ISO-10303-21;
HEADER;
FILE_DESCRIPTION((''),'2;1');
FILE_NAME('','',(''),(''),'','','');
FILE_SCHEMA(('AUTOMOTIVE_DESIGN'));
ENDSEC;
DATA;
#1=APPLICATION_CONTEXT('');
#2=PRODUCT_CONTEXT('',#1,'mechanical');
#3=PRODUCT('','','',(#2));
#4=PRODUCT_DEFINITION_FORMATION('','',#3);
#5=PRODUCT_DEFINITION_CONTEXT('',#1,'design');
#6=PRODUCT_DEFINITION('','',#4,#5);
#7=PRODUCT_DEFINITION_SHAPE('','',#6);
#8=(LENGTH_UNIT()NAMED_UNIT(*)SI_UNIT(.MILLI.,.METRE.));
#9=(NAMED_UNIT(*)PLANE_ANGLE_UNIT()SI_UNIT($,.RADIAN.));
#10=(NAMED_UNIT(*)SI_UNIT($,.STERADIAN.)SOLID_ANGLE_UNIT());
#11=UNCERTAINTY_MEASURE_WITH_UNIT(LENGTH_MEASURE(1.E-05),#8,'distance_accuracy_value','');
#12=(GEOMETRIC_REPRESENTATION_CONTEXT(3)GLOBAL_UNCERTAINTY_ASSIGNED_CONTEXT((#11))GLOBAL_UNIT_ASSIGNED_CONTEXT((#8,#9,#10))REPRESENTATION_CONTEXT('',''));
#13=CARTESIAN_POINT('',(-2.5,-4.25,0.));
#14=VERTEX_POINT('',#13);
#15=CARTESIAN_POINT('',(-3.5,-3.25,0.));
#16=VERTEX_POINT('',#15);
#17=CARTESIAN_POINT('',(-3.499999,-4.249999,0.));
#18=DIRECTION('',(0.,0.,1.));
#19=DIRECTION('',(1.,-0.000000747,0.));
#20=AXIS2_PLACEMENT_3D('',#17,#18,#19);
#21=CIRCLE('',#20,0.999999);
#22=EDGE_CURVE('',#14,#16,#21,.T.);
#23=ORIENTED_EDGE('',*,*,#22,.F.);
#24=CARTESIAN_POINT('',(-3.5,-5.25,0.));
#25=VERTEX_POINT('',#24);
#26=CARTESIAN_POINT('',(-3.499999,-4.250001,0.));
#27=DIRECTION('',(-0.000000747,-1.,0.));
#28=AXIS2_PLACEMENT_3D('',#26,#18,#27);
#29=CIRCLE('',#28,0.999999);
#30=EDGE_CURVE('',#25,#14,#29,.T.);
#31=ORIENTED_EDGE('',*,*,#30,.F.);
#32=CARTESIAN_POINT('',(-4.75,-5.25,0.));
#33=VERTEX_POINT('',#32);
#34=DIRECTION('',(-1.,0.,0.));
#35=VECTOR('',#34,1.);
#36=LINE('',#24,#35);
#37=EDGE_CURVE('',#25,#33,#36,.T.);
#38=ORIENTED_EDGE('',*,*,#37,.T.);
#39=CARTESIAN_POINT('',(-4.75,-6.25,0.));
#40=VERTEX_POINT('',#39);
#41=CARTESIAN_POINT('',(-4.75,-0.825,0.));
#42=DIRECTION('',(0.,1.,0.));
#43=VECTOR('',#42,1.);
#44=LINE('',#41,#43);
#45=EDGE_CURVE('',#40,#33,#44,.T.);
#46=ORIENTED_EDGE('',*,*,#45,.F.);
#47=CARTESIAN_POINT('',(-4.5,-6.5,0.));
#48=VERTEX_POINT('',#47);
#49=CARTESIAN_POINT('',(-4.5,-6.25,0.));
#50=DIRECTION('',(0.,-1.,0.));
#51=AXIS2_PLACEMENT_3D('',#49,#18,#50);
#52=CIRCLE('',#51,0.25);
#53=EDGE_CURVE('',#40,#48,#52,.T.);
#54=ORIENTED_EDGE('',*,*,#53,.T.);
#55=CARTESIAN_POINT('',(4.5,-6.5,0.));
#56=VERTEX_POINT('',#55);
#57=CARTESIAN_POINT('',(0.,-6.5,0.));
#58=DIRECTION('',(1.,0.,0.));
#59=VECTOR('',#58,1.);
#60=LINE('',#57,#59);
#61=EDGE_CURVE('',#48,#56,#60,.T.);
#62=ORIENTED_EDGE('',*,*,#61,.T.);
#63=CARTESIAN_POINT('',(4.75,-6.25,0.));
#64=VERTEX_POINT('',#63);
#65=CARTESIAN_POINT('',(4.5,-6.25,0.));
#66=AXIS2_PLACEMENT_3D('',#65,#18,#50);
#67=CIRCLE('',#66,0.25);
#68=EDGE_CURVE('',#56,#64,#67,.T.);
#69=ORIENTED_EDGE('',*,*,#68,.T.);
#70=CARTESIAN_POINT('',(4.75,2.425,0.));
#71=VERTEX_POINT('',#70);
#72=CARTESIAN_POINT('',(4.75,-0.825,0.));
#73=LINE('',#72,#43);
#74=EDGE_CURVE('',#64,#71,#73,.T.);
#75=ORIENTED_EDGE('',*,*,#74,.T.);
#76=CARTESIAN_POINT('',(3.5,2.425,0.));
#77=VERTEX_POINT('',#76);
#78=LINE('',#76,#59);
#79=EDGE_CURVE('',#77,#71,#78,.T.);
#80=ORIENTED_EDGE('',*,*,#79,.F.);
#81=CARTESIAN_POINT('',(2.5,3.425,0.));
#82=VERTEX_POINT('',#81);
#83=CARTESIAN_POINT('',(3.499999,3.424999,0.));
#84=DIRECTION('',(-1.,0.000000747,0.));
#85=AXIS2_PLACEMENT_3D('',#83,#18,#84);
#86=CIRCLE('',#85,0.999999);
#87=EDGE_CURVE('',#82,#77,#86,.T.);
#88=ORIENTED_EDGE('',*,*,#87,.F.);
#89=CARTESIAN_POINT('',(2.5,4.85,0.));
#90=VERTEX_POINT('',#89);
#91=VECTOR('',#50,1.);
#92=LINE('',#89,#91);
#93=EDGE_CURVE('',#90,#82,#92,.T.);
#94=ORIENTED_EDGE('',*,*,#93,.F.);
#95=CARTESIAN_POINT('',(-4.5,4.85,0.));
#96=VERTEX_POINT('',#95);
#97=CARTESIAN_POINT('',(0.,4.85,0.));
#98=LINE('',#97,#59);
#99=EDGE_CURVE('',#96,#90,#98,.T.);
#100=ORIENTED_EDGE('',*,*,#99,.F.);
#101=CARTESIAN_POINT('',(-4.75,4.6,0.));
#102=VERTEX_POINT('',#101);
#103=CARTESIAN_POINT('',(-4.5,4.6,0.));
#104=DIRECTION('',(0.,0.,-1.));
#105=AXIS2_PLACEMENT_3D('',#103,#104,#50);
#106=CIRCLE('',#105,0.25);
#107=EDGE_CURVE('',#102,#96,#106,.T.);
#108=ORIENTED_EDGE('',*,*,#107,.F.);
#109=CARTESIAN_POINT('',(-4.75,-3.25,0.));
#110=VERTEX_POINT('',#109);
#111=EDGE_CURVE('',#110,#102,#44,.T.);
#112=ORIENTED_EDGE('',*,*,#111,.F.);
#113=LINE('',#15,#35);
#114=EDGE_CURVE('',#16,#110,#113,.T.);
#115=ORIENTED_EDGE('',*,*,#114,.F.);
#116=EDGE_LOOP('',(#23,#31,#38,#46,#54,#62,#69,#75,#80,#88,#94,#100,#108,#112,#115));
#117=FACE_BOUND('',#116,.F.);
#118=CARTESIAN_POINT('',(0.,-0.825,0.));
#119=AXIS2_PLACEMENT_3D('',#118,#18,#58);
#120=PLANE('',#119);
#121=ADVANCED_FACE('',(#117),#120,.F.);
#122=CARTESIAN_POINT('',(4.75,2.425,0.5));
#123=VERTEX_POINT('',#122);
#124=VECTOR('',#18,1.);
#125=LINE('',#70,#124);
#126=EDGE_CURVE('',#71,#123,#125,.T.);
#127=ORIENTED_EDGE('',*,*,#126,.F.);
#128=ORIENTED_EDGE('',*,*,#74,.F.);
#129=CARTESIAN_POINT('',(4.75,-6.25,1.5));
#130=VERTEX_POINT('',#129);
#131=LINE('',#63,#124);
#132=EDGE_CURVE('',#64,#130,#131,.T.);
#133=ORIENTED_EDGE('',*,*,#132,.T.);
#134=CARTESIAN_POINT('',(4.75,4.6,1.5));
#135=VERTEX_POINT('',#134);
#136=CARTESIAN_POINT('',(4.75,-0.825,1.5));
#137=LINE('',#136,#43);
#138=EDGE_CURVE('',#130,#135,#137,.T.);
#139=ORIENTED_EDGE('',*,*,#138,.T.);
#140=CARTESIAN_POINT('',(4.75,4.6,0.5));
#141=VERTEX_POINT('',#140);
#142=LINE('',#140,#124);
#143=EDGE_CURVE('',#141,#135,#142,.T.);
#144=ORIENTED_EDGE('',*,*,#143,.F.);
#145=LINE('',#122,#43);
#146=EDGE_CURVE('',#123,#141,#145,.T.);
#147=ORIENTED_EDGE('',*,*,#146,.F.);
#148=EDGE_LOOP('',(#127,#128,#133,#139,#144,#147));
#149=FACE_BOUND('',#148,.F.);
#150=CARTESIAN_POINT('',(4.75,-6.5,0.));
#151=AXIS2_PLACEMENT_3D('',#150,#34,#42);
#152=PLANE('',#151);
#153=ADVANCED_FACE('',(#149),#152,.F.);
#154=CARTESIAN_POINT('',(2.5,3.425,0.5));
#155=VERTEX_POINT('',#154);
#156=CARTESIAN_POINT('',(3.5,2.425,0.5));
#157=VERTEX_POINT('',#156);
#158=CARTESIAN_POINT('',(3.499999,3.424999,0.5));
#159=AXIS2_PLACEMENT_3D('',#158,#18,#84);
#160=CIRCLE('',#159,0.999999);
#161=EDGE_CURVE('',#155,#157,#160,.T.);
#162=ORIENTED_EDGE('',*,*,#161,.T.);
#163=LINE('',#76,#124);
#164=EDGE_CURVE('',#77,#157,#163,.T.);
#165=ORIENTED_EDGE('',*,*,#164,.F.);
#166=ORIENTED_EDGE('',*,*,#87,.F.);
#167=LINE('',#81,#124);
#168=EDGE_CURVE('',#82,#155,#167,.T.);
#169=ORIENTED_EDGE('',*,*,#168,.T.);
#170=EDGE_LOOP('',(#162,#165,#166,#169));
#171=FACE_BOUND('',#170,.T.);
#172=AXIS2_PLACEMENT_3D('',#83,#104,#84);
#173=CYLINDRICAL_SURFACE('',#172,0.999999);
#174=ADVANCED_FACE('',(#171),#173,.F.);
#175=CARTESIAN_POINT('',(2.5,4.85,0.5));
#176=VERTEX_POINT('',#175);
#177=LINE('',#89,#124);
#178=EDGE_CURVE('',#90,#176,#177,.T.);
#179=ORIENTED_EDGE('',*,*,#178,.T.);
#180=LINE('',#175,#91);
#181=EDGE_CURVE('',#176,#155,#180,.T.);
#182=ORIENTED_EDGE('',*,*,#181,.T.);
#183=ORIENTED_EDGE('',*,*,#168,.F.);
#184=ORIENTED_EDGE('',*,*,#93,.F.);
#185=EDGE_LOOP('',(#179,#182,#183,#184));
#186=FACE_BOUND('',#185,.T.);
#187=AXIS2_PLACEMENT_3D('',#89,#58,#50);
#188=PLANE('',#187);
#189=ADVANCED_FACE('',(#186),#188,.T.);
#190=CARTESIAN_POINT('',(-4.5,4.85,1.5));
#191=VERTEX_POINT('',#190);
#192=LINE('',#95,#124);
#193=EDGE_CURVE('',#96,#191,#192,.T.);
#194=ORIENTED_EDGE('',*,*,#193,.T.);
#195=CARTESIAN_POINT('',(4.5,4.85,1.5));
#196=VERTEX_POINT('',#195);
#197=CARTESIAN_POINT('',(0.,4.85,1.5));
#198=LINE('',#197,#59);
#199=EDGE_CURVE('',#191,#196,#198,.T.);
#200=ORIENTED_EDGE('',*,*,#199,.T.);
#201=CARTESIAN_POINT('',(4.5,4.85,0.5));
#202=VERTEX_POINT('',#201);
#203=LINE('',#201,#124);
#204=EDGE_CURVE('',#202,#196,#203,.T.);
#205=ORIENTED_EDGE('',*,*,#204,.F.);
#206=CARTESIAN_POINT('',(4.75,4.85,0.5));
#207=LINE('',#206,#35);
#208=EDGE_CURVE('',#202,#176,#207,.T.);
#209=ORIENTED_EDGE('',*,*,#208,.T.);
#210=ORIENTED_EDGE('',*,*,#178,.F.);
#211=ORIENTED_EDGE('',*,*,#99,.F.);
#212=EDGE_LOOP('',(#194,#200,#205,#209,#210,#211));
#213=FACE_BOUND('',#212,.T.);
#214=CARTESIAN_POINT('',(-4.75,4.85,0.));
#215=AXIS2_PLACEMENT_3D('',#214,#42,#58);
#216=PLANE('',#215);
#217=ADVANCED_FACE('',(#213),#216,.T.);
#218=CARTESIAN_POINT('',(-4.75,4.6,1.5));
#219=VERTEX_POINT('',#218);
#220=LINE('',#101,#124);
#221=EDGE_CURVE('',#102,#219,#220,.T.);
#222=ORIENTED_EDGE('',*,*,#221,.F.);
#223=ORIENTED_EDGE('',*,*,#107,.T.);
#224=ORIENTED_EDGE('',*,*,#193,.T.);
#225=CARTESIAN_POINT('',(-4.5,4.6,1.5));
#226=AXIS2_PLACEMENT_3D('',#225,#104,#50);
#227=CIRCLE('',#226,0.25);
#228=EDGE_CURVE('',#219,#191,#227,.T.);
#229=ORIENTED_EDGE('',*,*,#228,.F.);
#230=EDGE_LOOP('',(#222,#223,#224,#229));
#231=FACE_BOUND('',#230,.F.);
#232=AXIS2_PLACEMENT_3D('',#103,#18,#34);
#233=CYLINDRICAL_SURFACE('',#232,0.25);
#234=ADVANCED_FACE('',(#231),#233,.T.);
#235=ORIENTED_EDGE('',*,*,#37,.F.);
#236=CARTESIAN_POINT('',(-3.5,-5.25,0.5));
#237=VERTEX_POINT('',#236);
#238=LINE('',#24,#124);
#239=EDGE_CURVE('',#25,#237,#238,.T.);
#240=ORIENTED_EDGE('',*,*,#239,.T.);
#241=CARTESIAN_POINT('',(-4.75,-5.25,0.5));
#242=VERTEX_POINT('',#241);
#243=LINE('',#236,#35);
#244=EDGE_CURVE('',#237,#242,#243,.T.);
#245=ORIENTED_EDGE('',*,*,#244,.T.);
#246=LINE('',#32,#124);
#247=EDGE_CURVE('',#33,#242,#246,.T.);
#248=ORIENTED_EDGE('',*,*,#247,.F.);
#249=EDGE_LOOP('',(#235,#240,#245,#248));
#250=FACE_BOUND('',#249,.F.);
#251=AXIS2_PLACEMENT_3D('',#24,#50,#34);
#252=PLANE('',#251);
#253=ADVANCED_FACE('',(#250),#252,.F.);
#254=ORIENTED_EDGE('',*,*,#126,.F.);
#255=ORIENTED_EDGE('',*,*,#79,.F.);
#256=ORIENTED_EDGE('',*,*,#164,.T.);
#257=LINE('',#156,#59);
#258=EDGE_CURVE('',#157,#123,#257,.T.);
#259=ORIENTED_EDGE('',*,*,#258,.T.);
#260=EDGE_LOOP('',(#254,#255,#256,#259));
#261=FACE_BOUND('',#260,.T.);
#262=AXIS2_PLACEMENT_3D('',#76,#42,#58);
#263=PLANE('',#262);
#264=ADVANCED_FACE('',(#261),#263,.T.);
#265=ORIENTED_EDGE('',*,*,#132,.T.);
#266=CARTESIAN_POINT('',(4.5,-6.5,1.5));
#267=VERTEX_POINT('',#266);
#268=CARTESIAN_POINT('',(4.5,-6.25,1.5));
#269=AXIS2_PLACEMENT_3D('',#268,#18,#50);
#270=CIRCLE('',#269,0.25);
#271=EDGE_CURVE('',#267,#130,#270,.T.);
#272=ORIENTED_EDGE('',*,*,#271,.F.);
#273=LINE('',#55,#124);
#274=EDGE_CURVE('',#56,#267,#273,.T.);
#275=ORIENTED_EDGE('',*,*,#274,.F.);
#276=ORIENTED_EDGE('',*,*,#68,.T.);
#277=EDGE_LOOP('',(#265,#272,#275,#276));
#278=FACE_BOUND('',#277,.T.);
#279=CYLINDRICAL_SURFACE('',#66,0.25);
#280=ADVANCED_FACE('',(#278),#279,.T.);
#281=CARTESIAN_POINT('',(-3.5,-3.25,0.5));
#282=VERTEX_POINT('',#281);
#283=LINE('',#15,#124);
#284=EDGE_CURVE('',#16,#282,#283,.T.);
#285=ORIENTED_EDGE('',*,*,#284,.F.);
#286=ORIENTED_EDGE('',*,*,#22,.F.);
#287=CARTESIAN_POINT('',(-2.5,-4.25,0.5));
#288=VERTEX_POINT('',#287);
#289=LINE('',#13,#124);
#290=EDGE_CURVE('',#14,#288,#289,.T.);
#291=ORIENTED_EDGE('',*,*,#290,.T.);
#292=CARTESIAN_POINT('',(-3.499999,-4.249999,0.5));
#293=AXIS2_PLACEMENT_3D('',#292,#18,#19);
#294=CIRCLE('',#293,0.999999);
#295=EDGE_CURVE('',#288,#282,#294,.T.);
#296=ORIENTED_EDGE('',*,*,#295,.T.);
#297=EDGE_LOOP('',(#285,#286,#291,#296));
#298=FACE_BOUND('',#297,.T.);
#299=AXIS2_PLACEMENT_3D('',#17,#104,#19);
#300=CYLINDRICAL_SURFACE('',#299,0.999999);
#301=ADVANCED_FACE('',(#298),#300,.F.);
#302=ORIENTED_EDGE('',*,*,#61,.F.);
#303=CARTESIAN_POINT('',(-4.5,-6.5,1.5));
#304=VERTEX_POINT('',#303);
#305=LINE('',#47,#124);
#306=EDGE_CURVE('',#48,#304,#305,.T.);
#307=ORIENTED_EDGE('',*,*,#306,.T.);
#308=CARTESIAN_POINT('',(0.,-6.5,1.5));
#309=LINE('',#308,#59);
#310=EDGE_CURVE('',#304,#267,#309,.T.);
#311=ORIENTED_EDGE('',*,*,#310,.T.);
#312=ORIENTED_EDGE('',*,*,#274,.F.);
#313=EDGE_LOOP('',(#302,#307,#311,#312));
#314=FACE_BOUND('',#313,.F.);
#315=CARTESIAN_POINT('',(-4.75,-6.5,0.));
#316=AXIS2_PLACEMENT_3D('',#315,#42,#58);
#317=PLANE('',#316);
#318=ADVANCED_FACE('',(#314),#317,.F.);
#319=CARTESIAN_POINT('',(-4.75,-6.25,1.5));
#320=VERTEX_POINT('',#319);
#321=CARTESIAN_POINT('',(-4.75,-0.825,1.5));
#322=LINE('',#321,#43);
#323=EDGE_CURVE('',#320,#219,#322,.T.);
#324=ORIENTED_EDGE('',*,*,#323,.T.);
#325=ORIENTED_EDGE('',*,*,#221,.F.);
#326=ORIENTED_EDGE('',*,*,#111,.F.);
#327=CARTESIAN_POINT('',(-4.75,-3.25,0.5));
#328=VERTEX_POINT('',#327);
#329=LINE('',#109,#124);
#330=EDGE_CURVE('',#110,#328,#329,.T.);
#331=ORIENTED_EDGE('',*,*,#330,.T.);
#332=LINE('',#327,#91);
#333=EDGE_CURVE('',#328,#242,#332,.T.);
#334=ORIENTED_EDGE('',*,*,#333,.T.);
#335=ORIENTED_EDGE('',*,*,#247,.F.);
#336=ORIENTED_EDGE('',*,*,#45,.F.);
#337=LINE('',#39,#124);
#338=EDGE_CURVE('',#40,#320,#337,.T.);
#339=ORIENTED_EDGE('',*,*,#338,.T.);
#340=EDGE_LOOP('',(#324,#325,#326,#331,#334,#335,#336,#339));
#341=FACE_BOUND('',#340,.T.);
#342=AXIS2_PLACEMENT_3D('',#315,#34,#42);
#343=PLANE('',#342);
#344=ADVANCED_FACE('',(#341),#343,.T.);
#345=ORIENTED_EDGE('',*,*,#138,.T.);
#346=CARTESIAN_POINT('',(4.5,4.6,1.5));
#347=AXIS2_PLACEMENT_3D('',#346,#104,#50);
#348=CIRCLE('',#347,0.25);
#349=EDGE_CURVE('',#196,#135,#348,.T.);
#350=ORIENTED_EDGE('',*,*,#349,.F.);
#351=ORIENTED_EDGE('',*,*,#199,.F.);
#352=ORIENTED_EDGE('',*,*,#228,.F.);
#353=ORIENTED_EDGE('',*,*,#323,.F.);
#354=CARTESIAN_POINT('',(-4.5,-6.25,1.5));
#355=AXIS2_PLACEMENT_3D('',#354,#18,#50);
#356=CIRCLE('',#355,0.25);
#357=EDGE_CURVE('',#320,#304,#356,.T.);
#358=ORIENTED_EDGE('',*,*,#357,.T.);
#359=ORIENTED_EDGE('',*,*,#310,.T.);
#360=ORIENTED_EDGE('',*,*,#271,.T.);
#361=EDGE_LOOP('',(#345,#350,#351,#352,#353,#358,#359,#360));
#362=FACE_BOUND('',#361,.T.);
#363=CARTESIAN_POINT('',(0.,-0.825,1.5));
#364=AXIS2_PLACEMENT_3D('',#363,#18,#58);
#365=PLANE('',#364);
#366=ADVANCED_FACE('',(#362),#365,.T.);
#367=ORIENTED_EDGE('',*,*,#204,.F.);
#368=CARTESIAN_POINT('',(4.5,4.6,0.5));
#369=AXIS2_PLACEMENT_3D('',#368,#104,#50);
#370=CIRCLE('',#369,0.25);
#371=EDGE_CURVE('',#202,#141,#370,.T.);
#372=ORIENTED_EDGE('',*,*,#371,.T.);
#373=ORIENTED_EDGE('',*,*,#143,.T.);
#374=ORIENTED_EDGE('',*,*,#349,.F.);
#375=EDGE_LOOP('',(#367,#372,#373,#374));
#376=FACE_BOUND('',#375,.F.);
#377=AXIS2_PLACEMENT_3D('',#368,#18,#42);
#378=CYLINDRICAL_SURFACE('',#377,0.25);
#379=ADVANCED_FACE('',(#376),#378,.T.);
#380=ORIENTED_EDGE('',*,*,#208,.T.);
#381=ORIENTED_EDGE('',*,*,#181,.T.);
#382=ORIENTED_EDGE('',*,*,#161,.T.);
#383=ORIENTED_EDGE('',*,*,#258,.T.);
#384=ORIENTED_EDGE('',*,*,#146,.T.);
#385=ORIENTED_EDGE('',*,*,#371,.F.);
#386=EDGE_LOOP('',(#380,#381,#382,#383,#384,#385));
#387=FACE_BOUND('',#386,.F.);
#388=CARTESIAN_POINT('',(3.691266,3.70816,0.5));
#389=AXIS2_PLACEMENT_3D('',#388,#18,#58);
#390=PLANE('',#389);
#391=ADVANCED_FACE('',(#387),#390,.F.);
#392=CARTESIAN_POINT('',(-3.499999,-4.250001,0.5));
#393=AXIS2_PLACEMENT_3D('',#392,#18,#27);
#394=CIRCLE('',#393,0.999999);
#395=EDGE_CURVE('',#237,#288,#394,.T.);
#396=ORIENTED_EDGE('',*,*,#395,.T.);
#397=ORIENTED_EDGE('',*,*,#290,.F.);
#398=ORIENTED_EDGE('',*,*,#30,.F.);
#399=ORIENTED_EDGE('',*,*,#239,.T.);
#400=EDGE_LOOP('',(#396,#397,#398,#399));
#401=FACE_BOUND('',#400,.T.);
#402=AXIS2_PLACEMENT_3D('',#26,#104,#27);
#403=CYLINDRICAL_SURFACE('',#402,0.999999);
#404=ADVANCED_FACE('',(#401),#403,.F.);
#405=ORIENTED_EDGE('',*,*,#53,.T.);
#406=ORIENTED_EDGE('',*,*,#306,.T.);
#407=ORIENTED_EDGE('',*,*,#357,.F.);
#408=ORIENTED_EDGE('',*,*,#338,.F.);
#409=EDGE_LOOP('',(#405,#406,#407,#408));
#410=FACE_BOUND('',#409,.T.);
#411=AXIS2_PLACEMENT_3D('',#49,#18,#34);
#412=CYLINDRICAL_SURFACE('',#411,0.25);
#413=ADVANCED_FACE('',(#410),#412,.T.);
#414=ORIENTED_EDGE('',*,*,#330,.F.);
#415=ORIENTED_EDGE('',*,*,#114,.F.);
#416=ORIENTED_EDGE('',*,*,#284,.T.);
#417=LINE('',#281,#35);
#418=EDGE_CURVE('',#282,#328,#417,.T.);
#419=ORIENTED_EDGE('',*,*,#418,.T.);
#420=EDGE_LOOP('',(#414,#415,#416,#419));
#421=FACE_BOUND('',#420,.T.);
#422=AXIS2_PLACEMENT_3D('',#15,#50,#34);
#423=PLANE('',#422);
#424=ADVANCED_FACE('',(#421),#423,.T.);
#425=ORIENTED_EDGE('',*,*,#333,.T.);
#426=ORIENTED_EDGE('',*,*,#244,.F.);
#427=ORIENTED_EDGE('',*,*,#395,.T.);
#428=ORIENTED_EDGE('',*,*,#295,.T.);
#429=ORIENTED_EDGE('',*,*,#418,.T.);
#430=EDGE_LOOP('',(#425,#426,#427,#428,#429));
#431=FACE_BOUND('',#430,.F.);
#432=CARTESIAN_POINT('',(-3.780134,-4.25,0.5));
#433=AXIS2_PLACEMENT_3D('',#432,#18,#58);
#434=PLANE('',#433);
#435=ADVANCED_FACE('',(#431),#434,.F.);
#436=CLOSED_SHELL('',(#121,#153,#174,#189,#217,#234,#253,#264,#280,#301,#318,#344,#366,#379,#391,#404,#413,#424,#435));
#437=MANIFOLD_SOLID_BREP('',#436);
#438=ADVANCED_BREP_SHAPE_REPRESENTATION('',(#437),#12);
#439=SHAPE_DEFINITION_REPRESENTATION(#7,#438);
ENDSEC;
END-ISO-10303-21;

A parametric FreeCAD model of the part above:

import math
import FreeCAD as App
import Part
import Sketcher


def edges_at(feature, points):
    """Names of the edges that pass closest to the given points."""
    edges = feature.Shape.Edges
    near = lambda p: min(range(len(edges)), key=lambda i: edges[i].distToShape(Part.Vertex(*p))[0])
    return sorted({f"Edge{near(p) + 1}" for p in points})


def add_polygon(sketch, points):
    """Adds a closed chain of lines whose ends are joined by coincident constraints."""
    first, n = sketch.GeometryCount, len(points)
    for a, b in zip(points, points[1:] + points[:1]):
        sketch.addGeometry(Part.LineSegment(App.Vector(*a, 0), App.Vector(*b, 0)), False)
    for i in range(n):
        sketch.addConstraint(Sketcher.Constraint("Coincident", first + i, 2, first + (i + 1) % n, 1))

doc = App.newDocument("Part")
params = doc.addObject("Spreadsheet::Sheet", "Params")
for row, (alias, value) in enumerate([
    ("sketch1_width", "9.5 mm"),
    ("sketch1_height", "11.35 mm"),
    ("pad1_length", "1.5 mm"),
    ("sketch2_radius", "0.999999 mm"),
    ("sketch2_width", "2.25 mm"),
    ("pocket1_length", "0.5 mm"),
    ("fillet_radius", "0.25 mm"),
], start=1):
    params.set(f"A{row}", alias)
    params.set(f"B{row}", "=" + value)
    params.setAlias(f"B{row}", alias)

body = doc.addObject("PartDesign::Body", "Body")

# Sketch on XY plane
sketch1 = doc.addObject("Sketcher::SketchObject", "Sketch")
body.addObject(sketch1)
sketch1.AttachmentSupport = (doc.XY_Plane, [""])
sketch1.MapMode = "FlatFace"
add_polygon(sketch1, [(-5, 5), (-5, -6), (5, -6), (5, 5)])  # lines 0-3
sketch1.addConstraint(Sketcher.Constraint("Vertical", 0))
sketch1.addConstraint(Sketcher.Constraint("Horizontal", 1))
sketch1.addConstraint(Sketcher.Constraint("Vertical", 2))
sketch1.addConstraint(Sketcher.Constraint("Horizontal", 3))
sketch1.addConstraint(Sketcher.Constraint("DistanceX", 1, 1, 1, 2, 9.5))
sketch1.addConstraint(Sketcher.Constraint("DistanceY", 0, 2, 0, 1, 11.35))
sketch1.addConstraint(Sketcher.Constraint("DistanceY", 0, 2, -1, 1, 6.5))
sketch1.addConstraint(Sketcher.Constraint("DistanceX", 0, 2, -1, 1, 4.75))
sketch1.setExpression("Constraints[8]", "Params.sketch1_width")
sketch1.setExpression("Constraints[9]", "Params.sketch1_height")
pad1 = doc.addObject("PartDesign::Pad", "Pad")
body.addObject(pad1)
pad1.Profile = sketch1
pad1.setExpression("Length", "Params.pad1_length")

# Sketch on XY plane
sketch2 = doc.addObject("Sketcher::SketchObject", "Sketch001")
body.addObject(sketch2)
sketch2.AttachmentSupport = (doc.XY_Plane, [""])
sketch2.MapMode = "FlatFace"
sketch2.addGeometry(Part.LineSegment(App.Vector(4.8, 4.8, 0), App.Vector(2.5, 4.8, 0)), False)
sketch2.addGeometry(Part.LineSegment(App.Vector(2.5, 4.8, 0), App.Vector(2.5, 3.4, 0)), False)
sketch2.addGeometry(Part.ArcOfCircle(Part.Circle(App.Vector(3.5, 3.4, 0), App.Vector(0, 0, 1), 1), math.radians(180), math.radians(270)), False)
sketch2.addGeometry(Part.LineSegment(App.Vector(3.5, 2.4, 0), App.Vector(4.8, 2.4, 0)), False)
sketch2.addGeometry(Part.LineSegment(App.Vector(4.8, 2.4, 0), App.Vector(4.8, 4.8, 0)), False)
sketch2.addGeometry(Part.LineSegment(App.Vector(-3.5, -3.2, 0), App.Vector(-4.8, -3.2, 0)), False)
sketch2.addGeometry(Part.LineSegment(App.Vector(-4.8, -3.2, 0), App.Vector(-4.8, -5.2, 0)), False)
sketch2.addGeometry(Part.LineSegment(App.Vector(-4.8, -5.2, 0), App.Vector(-3.5, -5.2, 0)), False)
sketch2.addGeometry(Part.ArcOfCircle(Part.Circle(App.Vector(-3.5, -4.3, 0), App.Vector(0, 0, 1), 1), math.radians(-90), math.radians(0)), False)
sketch2.addGeometry(Part.ArcOfCircle(Part.Circle(App.Vector(-3.5, -4.2, 0), App.Vector(0, 0, 1), 1), math.radians(0), math.radians(90)), False)
sketch2.addConstraint(Sketcher.Constraint("Coincident", 0, 2, 1, 1))
sketch2.addConstraint(Sketcher.Constraint("Tangent", 1, 2, 2, 1))
sketch2.addConstraint(Sketcher.Constraint("Tangent", 2, 2, 3, 1))
sketch2.addConstraint(Sketcher.Constraint("Coincident", 3, 2, 4, 1))
sketch2.addConstraint(Sketcher.Constraint("Coincident", 4, 2, 0, 1))
sketch2.addConstraint(Sketcher.Constraint("Coincident", 5, 2, 6, 1))
sketch2.addConstraint(Sketcher.Constraint("Coincident", 6, 2, 7, 1))
sketch2.addConstraint(Sketcher.Constraint("Tangent", 7, 2, 8, 1))
sketch2.addConstraint(Sketcher.Constraint("Tangent", 8, 2, 9, 1))
sketch2.addConstraint(Sketcher.Constraint("Tangent", 9, 2, 5, 1))
sketch2.addConstraint(Sketcher.Constraint("Horizontal", 0))
sketch2.addConstraint(Sketcher.Constraint("Vertical", 1))
sketch2.addConstraint(Sketcher.Constraint("Horizontal", 3))
sketch2.addConstraint(Sketcher.Constraint("Vertical", 4))
sketch2.addConstraint(Sketcher.Constraint("Horizontal", 5))
sketch2.addConstraint(Sketcher.Constraint("Vertical", 6))
sketch2.addConstraint(Sketcher.Constraint("Horizontal", 7))
sketch2.addConstraint(Sketcher.Constraint("Equal", 2, 8))
sketch2.addConstraint(Sketcher.Constraint("Equal", 8, 9))
sketch2.addConstraint(Sketcher.Constraint("Horizontal", 9, 3, 8, 2))
sketch2.addConstraint(Sketcher.Constraint("Equal", 3, 5))
sketch2.addConstraint(Sketcher.Constraint("Radius", 2, 0.999999))
sketch2.addConstraint(Sketcher.Constraint("DistanceX", 8, 3, 2, 3, 6.999999))
sketch2.addConstraint(Sketcher.Constraint("DistanceX", 0, 2, 0, 1, 2.25))
sketch2.addConstraint(Sketcher.Constraint("DistanceX", -1, 1, 2, 3, 3.499999))
sketch2.addConstraint(Sketcher.Constraint("DistanceY", 9, 3, 0, 2, 9.099999))
sketch2.addConstraint(Sketcher.Constraint("DistanceY", 1, 2, 1, 1, 1.425))
sketch2.addConstraint(Sketcher.Constraint("DistanceY", 8, 3, -1, 1, 4.250001))
sketch2.setExpression("Constraints[21]", "Params.sketch2_radius")
sketch2.setExpression("Constraints[23]", "Params.sketch2_width")
pocket1 = doc.addObject("PartDesign::Pocket", "Pocket")
body.addObject(pocket1)
pocket1.Profile = sketch2
pocket1.setExpression("Length", "Params.pocket1_length")
pocket1.Reversed = True
doc.recompute()

fillet = doc.addObject("PartDesign::Fillet", "Fillet")
body.addObject(fillet)
fillet.Base = (pocket1, edges_at(pocket1, [
    (4.75, 4.85, 1),
    (4.75, -6.5, 0.75),
    (-4.75, -6.5, 0.75),
    (-4.75, 4.85, 0.75),
]))
fillet.setExpression("Radius", "Params.fillet_radius")

doc.recompute()
